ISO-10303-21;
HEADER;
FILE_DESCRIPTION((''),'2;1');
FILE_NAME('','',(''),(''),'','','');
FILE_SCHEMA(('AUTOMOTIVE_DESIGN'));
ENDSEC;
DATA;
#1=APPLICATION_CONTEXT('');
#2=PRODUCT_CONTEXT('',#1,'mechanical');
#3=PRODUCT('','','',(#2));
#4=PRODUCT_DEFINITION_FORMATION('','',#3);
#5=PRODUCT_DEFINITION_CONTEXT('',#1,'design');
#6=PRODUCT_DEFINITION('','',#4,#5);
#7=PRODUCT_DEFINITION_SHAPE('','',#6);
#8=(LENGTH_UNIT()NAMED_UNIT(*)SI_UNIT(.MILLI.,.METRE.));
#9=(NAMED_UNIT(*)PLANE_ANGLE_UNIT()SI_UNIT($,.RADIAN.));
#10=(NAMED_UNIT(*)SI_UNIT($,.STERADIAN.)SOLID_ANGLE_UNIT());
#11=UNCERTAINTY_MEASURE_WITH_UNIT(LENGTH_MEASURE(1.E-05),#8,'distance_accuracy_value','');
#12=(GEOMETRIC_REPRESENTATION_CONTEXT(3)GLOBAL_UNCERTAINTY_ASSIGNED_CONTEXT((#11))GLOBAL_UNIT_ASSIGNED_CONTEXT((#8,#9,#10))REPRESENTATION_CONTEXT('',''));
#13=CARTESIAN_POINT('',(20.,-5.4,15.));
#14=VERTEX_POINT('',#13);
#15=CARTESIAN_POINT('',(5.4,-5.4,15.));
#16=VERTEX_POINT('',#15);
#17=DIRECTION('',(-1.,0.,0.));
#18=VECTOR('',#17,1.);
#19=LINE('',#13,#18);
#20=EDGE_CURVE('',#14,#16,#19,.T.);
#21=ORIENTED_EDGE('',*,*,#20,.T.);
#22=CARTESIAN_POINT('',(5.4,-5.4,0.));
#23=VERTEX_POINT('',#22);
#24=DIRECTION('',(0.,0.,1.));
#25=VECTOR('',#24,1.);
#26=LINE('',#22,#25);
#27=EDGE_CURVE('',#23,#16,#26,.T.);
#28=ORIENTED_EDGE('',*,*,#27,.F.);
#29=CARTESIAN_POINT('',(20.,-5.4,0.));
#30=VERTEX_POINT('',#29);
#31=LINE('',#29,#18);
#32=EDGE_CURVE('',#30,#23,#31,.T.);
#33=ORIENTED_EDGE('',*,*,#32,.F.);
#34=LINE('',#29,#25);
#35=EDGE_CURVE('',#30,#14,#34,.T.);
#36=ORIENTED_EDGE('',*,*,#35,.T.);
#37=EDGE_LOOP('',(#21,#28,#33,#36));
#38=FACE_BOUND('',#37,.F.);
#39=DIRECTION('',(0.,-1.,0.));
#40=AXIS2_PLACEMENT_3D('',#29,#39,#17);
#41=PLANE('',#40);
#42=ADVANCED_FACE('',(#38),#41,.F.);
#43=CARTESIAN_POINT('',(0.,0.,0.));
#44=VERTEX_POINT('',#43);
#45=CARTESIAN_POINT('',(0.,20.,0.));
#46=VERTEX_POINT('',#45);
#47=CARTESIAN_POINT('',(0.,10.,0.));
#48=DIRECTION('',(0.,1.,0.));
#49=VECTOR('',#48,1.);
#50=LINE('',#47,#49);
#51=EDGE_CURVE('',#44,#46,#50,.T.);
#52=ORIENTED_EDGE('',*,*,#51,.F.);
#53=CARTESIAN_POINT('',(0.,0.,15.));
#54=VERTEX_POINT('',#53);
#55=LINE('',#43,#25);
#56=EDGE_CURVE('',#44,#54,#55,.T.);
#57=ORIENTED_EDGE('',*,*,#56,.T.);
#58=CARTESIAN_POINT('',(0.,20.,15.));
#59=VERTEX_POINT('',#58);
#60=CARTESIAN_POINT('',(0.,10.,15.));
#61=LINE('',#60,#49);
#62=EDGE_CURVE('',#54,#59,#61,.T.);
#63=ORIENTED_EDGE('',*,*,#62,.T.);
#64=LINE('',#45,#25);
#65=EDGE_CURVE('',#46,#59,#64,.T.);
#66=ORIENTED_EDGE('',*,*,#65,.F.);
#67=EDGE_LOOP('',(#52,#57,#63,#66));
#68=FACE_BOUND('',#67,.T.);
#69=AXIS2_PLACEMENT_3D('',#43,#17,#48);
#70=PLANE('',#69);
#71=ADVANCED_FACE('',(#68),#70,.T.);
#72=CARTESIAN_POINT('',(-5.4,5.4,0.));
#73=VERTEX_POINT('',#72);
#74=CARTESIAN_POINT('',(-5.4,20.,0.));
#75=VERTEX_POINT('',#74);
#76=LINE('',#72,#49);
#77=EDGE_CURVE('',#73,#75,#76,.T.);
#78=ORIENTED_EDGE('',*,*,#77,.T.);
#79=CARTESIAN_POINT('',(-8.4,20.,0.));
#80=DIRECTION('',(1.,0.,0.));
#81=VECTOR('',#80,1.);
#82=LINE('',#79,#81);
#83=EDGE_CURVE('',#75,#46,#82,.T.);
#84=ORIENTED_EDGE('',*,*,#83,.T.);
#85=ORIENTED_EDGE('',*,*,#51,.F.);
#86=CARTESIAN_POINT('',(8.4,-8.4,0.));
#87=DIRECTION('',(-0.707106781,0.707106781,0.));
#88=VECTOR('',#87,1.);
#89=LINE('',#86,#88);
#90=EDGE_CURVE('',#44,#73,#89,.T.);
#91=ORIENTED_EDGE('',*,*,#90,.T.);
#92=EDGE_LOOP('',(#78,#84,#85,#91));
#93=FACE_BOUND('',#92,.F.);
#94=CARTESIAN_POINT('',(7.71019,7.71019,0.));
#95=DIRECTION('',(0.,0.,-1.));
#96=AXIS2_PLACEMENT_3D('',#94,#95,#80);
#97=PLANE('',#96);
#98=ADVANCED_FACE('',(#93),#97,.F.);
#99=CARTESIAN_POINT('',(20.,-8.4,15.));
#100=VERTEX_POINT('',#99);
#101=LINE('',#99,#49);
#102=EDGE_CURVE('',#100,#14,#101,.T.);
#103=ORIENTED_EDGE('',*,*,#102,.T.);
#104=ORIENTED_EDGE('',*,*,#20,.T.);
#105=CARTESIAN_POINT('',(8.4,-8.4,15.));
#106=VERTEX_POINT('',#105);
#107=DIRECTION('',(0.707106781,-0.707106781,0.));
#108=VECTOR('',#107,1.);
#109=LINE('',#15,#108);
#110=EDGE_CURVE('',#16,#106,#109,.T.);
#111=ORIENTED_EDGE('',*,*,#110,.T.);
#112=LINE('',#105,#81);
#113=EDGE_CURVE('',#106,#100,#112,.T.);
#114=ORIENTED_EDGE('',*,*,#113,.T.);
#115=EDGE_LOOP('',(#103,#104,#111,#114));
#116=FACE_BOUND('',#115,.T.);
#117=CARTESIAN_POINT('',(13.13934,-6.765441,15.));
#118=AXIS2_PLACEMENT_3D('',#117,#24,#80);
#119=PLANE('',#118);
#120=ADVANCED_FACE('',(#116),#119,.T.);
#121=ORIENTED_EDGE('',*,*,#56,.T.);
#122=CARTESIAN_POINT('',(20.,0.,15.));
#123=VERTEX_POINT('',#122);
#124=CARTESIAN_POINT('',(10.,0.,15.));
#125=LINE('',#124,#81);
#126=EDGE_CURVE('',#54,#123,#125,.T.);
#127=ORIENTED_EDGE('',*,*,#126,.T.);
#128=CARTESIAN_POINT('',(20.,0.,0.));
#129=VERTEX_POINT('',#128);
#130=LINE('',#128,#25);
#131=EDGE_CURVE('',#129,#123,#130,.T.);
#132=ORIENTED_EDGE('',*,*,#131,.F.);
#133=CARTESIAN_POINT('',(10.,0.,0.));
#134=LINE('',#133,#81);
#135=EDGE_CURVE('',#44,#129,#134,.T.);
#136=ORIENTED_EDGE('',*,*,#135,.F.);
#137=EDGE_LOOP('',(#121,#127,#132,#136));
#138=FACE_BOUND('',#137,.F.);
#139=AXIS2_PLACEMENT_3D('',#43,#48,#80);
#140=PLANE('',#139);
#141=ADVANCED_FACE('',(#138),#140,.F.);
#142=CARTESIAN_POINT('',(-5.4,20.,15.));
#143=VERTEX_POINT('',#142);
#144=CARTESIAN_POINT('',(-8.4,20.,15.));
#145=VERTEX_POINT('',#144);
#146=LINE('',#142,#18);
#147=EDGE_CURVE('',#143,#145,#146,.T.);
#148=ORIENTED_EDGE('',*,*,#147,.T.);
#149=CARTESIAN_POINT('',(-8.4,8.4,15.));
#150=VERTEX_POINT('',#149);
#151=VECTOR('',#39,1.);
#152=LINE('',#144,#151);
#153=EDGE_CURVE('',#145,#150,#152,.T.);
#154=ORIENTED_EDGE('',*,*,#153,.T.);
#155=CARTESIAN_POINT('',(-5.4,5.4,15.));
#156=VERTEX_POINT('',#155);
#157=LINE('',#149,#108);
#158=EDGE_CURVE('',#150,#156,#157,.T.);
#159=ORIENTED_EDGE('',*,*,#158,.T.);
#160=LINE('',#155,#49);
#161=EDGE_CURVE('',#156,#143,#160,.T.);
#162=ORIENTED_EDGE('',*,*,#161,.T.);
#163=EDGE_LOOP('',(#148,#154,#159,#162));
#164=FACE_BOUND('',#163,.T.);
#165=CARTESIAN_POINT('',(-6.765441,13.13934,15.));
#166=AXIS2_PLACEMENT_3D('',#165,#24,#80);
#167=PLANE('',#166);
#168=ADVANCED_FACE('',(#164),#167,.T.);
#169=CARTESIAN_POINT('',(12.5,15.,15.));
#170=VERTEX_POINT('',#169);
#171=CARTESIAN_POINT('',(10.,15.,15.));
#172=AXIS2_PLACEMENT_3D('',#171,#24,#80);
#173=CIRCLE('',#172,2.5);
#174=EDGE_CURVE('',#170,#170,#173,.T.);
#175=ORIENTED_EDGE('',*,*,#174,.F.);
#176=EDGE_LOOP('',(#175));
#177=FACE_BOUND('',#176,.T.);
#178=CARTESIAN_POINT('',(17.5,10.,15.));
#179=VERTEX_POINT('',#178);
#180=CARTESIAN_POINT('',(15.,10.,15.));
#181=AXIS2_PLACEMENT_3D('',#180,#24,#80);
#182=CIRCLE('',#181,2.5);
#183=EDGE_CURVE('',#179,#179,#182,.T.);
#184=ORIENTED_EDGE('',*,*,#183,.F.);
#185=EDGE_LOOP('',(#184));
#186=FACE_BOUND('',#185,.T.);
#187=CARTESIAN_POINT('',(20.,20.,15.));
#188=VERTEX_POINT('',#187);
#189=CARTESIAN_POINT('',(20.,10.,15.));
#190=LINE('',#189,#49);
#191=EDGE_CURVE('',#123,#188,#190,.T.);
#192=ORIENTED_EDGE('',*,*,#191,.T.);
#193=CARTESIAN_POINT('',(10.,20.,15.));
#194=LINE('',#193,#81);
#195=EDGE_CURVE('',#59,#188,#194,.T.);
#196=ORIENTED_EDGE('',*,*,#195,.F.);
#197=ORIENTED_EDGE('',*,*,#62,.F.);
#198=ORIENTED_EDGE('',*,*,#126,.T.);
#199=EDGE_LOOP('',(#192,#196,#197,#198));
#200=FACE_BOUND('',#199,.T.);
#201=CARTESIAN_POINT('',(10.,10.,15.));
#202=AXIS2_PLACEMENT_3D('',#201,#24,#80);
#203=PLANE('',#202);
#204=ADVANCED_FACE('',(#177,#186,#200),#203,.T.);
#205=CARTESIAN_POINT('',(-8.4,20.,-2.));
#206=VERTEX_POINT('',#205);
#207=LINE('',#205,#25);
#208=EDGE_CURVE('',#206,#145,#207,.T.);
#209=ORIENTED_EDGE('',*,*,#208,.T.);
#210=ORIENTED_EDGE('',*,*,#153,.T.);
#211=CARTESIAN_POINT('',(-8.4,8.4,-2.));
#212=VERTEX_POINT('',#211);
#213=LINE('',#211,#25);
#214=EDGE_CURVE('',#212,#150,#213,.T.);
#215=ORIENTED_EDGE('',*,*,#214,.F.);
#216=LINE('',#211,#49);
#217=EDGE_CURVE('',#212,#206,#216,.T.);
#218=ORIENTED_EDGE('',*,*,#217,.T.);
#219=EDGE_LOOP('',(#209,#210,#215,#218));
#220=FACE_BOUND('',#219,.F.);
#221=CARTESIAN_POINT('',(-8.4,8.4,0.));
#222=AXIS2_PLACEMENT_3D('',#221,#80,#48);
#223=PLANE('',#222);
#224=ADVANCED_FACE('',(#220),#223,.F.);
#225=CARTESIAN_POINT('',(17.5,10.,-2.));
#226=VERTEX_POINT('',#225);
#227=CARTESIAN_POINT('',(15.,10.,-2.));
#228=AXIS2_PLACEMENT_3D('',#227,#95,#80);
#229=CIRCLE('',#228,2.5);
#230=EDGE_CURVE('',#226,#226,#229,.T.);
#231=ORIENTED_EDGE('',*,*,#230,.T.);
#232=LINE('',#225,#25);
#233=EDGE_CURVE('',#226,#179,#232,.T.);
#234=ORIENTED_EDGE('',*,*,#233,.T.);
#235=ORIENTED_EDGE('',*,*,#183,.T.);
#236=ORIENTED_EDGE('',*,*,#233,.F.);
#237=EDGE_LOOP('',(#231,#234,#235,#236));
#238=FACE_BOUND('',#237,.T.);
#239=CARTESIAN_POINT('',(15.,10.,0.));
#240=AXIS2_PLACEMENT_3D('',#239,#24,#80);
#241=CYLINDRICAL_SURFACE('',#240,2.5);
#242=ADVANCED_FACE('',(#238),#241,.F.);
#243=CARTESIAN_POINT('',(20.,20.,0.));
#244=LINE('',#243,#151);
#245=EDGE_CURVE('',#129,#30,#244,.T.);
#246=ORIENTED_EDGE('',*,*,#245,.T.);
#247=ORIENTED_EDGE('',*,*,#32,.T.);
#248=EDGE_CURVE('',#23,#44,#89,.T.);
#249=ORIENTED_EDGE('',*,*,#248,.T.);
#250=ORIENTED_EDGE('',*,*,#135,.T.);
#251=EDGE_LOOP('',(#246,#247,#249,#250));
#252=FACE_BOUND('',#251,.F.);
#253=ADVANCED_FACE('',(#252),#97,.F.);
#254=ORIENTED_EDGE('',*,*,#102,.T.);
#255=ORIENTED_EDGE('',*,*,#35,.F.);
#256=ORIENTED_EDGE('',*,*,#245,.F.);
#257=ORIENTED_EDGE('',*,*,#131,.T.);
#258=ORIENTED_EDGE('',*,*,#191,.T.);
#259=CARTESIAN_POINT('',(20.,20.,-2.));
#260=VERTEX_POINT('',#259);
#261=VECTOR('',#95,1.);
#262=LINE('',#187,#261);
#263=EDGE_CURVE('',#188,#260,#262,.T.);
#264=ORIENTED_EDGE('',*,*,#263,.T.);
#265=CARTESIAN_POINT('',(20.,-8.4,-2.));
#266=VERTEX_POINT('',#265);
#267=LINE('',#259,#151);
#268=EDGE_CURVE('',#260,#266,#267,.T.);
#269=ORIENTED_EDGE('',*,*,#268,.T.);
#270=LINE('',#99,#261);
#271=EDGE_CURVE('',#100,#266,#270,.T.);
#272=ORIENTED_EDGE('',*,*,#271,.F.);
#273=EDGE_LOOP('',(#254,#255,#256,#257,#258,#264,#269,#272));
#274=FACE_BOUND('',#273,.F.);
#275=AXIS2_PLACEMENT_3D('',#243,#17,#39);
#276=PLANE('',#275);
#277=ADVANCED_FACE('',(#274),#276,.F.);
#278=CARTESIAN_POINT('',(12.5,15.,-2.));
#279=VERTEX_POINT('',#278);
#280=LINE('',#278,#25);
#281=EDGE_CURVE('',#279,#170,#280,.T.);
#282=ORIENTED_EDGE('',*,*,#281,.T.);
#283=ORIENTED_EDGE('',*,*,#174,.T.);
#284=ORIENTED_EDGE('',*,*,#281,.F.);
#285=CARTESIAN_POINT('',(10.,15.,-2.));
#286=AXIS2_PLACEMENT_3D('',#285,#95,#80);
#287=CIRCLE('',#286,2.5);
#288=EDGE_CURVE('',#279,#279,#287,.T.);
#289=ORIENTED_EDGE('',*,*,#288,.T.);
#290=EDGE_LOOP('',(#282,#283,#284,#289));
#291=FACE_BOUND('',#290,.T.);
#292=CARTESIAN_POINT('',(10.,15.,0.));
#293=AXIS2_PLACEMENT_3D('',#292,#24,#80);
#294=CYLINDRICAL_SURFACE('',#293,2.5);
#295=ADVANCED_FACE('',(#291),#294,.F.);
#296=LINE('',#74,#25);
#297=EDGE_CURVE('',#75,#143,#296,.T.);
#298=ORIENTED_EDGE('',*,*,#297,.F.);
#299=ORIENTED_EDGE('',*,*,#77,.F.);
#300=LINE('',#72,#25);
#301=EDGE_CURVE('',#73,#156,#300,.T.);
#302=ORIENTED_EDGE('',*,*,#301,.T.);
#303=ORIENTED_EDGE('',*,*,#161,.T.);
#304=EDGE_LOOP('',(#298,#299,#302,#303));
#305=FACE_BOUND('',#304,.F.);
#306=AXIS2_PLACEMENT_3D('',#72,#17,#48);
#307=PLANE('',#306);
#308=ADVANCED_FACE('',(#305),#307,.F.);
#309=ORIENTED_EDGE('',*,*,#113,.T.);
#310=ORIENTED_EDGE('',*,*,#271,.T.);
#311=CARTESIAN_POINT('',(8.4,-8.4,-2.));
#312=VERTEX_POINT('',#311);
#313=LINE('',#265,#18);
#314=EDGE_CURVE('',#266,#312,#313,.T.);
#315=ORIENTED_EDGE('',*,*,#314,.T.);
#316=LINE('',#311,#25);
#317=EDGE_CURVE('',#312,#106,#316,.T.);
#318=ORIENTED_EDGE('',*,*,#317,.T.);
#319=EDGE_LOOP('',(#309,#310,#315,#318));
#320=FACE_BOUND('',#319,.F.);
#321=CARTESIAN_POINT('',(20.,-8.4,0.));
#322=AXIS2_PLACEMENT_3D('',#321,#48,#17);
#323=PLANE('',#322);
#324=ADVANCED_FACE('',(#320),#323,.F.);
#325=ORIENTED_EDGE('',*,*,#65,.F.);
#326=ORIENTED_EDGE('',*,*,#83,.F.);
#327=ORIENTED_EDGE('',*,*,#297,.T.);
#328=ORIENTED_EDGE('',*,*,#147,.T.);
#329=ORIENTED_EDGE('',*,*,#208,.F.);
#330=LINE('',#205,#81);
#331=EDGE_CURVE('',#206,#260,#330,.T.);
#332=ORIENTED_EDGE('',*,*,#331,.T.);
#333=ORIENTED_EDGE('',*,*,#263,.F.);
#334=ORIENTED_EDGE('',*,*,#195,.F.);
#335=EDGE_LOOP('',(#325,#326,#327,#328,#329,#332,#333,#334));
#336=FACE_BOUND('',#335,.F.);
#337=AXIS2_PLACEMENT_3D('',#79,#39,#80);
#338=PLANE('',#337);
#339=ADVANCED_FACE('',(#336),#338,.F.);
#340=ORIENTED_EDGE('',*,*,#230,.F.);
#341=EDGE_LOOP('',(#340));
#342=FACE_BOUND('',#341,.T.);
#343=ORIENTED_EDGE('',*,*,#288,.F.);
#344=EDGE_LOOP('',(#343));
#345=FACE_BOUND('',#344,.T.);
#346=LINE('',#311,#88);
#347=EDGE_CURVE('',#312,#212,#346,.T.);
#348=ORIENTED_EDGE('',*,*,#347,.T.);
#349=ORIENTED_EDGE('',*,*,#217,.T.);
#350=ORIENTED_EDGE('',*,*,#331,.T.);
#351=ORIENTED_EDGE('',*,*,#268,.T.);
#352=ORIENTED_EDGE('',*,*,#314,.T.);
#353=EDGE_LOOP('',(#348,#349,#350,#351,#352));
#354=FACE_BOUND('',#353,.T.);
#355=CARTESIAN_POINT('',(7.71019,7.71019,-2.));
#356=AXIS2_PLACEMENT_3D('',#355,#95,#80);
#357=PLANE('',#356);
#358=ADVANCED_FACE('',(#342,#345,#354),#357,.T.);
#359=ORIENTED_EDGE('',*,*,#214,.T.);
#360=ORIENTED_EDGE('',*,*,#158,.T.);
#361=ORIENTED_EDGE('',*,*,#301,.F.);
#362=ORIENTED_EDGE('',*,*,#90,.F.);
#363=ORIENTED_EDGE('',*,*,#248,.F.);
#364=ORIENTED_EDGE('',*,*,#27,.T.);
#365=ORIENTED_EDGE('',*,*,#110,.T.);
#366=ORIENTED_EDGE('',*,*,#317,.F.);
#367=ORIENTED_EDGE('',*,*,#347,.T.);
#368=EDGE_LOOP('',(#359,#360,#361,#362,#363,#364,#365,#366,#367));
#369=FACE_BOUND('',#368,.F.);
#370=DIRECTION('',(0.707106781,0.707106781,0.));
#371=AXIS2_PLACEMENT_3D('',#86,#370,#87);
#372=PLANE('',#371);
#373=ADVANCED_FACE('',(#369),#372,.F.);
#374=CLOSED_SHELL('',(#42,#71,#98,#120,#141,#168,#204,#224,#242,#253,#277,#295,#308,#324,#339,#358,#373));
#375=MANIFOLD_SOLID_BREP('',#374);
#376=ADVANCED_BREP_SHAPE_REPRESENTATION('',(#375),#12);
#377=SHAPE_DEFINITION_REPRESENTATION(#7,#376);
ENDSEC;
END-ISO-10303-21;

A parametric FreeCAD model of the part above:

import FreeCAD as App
import Part
import Sketcher

V = App.Vector

doc = App.newDocument("Part")
params = doc.addObject("Spreadsheet::Sheet", "Params")
for row, (alias, value) in enumerate([
    ("sketch1_diameter", "5 mm"),
    ("sketch1_width", "20 mm"),
    ("pad1_length", "15 mm"),
    ("sketch2_width", "3 mm"),
    ("sketch2_width2", "14.6 mm"),
    ("pad2_length", "15 mm"),
    ("sketch3_diameter", "5 mm"),
    ("sketch3_width", "28.4 mm"),
    ("sketch3_width2", "11.6 mm"),
    ("pad3_length", "2 mm"),
], start=1):
    params.set(f"A{row}", alias)
    params.set(f"B{row}", "=" + value)
    params.setAlias(f"B{row}", alias)

body = doc.addObject("PartDesign::Body", "Body")

sketch1 = body.newObject("Sketcher::SketchObject", "Sketch")
sketch1.AttachmentSupport = (doc.getObject("XY_Plane"), [""])
sketch1.MapMode = "FlatFace"
sketch1.addGeometry([
    Part.LineSegment(V(0, 20, 0), V(0, 0, 0)),
    Part.LineSegment(V(0, 0, 0), V(20, 0, 0)),
    Part.LineSegment(V(20, 0, 0), V(20, 20, 0)),
    Part.LineSegment(V(20, 20, 0), V(0, 20, 0)),
    Part.Circle(V(15, 10, 0), V(0, 0, 1), 2.5),
    Part.Circle(V(10, 15, 0), V(0, 0, 1), 2.5),
], False)
sketch1.addConstraint([
    Sketcher.Constraint("Coincident", 0, 2, 1, 1),
    Sketcher.Constraint("Coincident", 1, 2, 2, 1),
    Sketcher.Constraint("Coincident", 2, 2, 3, 1),
    Sketcher.Constraint("Coincident", 3, 2, 0, 1),
    Sketcher.Constraint("Vertical", 0),
    Sketcher.Constraint("Horizontal", 1),
    Sketcher.Constraint("Vertical", 2),
    Sketcher.Constraint("Horizontal", 3),
    Sketcher.Constraint("Coincident", 0, 2, -1, 1),
    Sketcher.Constraint("Equal", 4, 5),
    Sketcher.Constraint("Equal", 3, 0),
    Sketcher.Constraint("Diameter", 4, 5.0),
    Sketcher.Constraint("DistanceX", 1, 1, 1, 2, 20.0),
    Sketcher.Constraint("DistanceX", -1, 1, 4, 3, 15.0),
    Sketcher.Constraint("DistanceY", -1, 1, 4, 3, 10.0),
    Sketcher.Constraint("DistanceX", -1, 1, 5, 3, 10.0),
    Sketcher.Constraint("DistanceY", -1, 1, 5, 3, 15.0),
])
sketch1.setExpression("Constraints[11]", "Params.sketch1_diameter")
sketch1.setExpression("Constraints[12]", "Params.sketch1_width")
pad1 = body.newObject("PartDesign::Pad", "Pad")
pad1.Profile = sketch1
pad1.setExpression("Length", "Params.pad1_length")
body2 = doc.addObject("PartDesign::Body", "Body001")
body2.AllowCompound = True

sketch2 = body2.newObject("Sketcher::SketchObject", "Sketch001")
sketch2.AttachmentSupport = (doc.getObject("XY_Plane001"), [""])
sketch2.MapMode = "FlatFace"
sketch2.addGeometry([
    Part.LineSegment(V(-5.4, 20, 0), V(-8.4, 20, 0)),
    Part.LineSegment(V(-8.4, 20, 0), V(-8.4, 8.4, 0)),
    Part.LineSegment(V(-8.4, 8.4, 0), V(-5.4, 5.4, 0)),
    Part.LineSegment(V(-5.4, 5.4, 0), V(-5.4, 20, 0)),
    Part.LineSegment(V(20, -8.4, 0), V(20, -5.4, 0)),
    Part.LineSegment(V(20, -5.4, 0), V(5.4, -5.4, 0)),
    Part.LineSegment(V(5.4, -5.4, 0), V(8.4, -8.4, 0)),
    Part.LineSegment(V(8.4, -8.4, 0), V(20, -8.4, 0)),
], False)
sketch2.addConstraint([
    Sketcher.Constraint("Coincident", 0, 2, 1, 1),
    Sketcher.Constraint("Coincident", 1, 2, 2, 1),
    Sketcher.Constraint("Coincident", 2, 2, 3, 1),
    Sketcher.Constraint("Coincident", 3, 2, 0, 1),
    Sketcher.Constraint("Coincident", 4, 2, 5, 1),
    Sketcher.Constraint("Coincident", 5, 2, 6, 1),
    Sketcher.Constraint("Coincident", 6, 2, 7, 1),
    Sketcher.Constraint("Coincident", 7, 2, 4, 1),
    Sketcher.Constraint("Horizontal", 0),
    Sketcher.Constraint("Vertical", 1),
    Sketcher.Constraint("Vertical", 3),
    Sketcher.Constraint("Vertical", 4),
    Sketcher.Constraint("Horizontal", 5),
    Sketcher.Constraint("Horizontal", 7),
    Sketcher.Constraint("Symmetric", 2, 2, 5, 2, -1, 1),
    Sketcher.Constraint("Symmetric", 1, 2, 6, 2, -1, 1),
    Sketcher.Constraint("Equal", 7, 1),
    Sketcher.Constraint("Equal", 5, 3),
    Sketcher.Constraint("DistanceX", 0, 2, 0, 1, 3.0),
    Sketcher.Constraint("DistanceX", 5, 2, 5, 1, 14.6),
    Sketcher.Constraint("DistanceY", -1, 1, 0, 2, 20.0),
    Sketcher.Constraint("DistanceX", -1, 1, 4, 2, 20.0),
])
sketch2.setExpression("Constraints[18]", "Params.sketch2_width")
sketch2.setExpression("Constraints[19]", "Params.sketch2_width2")
pad2 = body2.newObject("PartDesign::Pad", "Pad001")
pad2.Profile = sketch2
pad2.setExpression("Length", "Params.pad2_length")
body.AllowCompound = True
doc.recompute()

boolean = body.newObject("PartDesign::Boolean", "Boolean")
boolean.Type = "Fuse"
boolean.addObjects([body2])

sketch3 = body.newObject("Sketcher::SketchObject", "Sketch002")
sketch3.AttachmentSupport = (doc.getObject("XY_Plane"), [""])
sketch3.MapMode = "FlatFace"
sketch3.addGeometry([
    Part.LineSegment(V(-8.4, 20, 0), V(20, 20, 0)),
    Part.LineSegment(V(20, 20, 0), V(20, -8.4, 0)),
    Part.LineSegment(V(20, -8.4, 0), V(8.4, -8.4, 0)),
    Part.LineSegment(V(8.4, -8.4, 0), V(-8.4, 8.4, 0)),
    Part.LineSegment(V(-8.4, 8.4, 0), V(-8.4, 20, 0)),
    Part.Circle(V(10, 15, 0), V(0, 0, 1), 2.5),
    Part.Circle(V(15, 10, 0), V(0, 0, 1), 2.5),
], False)
sketch3.addConstraint([
    Sketcher.Constraint("Coincident", 0, 2, 1, 1),
    Sketcher.Constraint("Coincident", 1, 2, 2, 1),
    Sketcher.Constraint("Coincident", 2, 2, 3, 1),
    Sketcher.Constraint("Coincident", 3, 2, 4, 1),
    Sketcher.Constraint("Coincident", 4, 2, 0, 1),
    Sketcher.Constraint("Horizontal", 0),
    Sketcher.Constraint("Vertical", 1),
    Sketcher.Constraint("Horizontal", 2),
    Sketcher.Constraint("Vertical", 4),
    Sketcher.Constraint("Equal", 5, 6),
    Sketcher.Constraint("Symmetric", 2, 2, 3, 2, -1, 1),
    Sketcher.Constraint("Equal", 0, 1),
    Sketcher.Constraint("Equal", 2, 4),
    Sketcher.Constraint("Diameter", 5, 5.0),
    Sketcher.Constraint("DistanceX", 0, 1, 0, 2, 28.4),
    Sketcher.Constraint("DistanceX", 2, 2, 2, 1, 11.6),
    Sketcher.Constraint("DistanceX", -1, 1, 5, 3, 10.0),
    Sketcher.Constraint("DistanceY", -1, 1, 5, 3, 15.0),
    Sketcher.Constraint("DistanceX", -1, 1, 6, 3, 15.0),
    Sketcher.Constraint("DistanceY", -1, 1, 6, 3, 10.0),
])
sketch3.setExpression("Constraints[13]", "Params.sketch3_diameter")
sketch3.setExpression("Constraints[14]", "Params.sketch3_width")
sketch3.setExpression("Constraints[15]", "Params.sketch3_width2")
pad3 = body.newObject("PartDesign::Pad", "Pad002")
pad3.Profile = sketch3
pad3.setExpression("Length", "Params.pad3_length")
pad3.Reversed = True

doc.recompute()
